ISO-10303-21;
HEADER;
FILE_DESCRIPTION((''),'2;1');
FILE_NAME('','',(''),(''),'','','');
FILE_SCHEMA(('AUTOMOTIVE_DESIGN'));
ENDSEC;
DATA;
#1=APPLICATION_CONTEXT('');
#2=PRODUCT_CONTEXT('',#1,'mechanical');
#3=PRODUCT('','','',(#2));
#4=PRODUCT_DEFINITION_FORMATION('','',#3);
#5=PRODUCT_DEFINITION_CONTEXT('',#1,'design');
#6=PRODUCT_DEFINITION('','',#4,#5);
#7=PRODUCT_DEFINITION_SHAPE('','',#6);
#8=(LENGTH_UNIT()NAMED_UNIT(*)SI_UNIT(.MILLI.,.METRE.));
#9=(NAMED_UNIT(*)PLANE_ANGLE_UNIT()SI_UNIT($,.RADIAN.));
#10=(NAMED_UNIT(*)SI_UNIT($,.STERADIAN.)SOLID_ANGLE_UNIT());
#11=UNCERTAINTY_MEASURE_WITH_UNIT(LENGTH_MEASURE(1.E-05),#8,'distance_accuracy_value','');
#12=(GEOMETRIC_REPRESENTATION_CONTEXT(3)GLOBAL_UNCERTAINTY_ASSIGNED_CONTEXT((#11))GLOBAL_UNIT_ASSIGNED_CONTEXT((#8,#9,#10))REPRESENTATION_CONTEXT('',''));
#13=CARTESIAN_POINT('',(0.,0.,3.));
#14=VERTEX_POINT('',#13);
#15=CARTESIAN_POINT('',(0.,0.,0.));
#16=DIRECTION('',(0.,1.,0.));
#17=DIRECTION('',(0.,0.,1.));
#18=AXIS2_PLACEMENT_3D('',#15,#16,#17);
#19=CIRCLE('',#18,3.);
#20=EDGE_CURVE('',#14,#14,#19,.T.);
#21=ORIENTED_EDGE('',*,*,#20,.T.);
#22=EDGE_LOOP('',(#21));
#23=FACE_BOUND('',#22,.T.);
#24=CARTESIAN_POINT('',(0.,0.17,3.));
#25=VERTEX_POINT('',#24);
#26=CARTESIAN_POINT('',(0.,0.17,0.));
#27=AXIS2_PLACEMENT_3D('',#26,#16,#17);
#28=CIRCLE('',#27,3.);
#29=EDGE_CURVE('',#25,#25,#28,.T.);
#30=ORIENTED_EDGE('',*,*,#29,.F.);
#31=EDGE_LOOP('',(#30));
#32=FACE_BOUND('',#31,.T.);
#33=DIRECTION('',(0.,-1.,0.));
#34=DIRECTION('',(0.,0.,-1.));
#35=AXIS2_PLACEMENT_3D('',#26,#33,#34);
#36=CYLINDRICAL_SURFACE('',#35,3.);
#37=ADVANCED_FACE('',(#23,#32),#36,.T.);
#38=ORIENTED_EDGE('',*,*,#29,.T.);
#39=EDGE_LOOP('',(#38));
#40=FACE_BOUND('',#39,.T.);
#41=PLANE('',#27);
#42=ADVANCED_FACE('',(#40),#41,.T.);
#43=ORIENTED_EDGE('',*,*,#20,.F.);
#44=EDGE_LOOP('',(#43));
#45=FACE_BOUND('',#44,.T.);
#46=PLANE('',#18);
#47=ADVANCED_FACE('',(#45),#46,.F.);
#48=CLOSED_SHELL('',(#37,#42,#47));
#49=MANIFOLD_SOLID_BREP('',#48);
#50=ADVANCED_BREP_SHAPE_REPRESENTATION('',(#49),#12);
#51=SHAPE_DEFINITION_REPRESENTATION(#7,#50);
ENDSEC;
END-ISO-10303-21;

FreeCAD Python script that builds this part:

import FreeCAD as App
import Part
import Sketcher

doc = App.newDocument("Part")
body = doc.addObject("PartDesign::Body", "Body")

# Sketch on XZ plane
sketch1 = body.newObject("Sketcher::SketchObject", "Sketch")
sketch1.AttachmentSupport = (doc.getObject("XZ_Plane"), [""])
sketch1.MapMode = "FlatFace"
sketch1.addGeometry(Part.Circle(App.Vector(0, 0, 0), App.Vector(0, 0, 1), 3), False)
sketch1.addConstraint([
    Sketcher.Constraint("Coincident", 0, 3, -1, 1),
    Sketcher.Constraint("Diameter", 0, 6.0),
])
pad1 = body.newObject("PartDesign::Pad", "Pad")
pad1.Profile = sketch1
pad1.Length = 0.17
pad1.Reversed = True

doc.recompute()
